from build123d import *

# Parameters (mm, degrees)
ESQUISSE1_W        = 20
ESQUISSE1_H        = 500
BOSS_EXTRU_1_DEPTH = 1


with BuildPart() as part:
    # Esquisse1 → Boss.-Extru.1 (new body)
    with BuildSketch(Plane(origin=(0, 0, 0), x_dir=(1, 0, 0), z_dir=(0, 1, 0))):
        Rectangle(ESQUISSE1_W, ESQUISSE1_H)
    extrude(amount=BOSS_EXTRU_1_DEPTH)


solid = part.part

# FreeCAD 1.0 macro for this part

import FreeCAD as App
import Part
import Sketcher

V = App.Vector
Q = App.Units.Quantity

doc = App.newDocument("Part")
body = doc.addObject("PartDesign::Body", "Body")

# Sketch on XZ plane
sketch1 = doc.addObject("Sketcher::SketchObject", "Sketch")
body.addObject(sketch1)
sketch1.AttachmentSupport = (doc.XZ_Plane, [""])
sketch1.MapMode = "FlatFace"
sketch1.addGeometry([
    Part.LineSegment(V(-10, -250, 0), V(-10, 250, 0)),
    Part.LineSegment(V(-10, 250, 0), V(10, 250, 0)),
    Part.LineSegment(V(10, 250, 0), V(10, -250, 0)),
    Part.LineSegment(V(10, -250, 0), V(-10, -250, 0)),
], False)
sketch1.addConstraint([
    Sketcher.Constraint("Coincident", 0, 2, 1, 1),
    Sketcher.Constraint("Coincident", 1, 2, 2, 1),
    Sketcher.Constraint("Coincident", 2, 2, 3, 1),
    Sketcher.Constraint("Coincident", 3, 2, 0, 1),
    Sketcher.Constraint("Vertical", 0),
    Sketcher.Constraint("Horizontal", 1),
    Sketcher.Constraint("Vertical", 2),
    Sketcher.Constraint("Horizontal", 3),
    Sketcher.Constraint("Symmetric", 0, 2, 2, 2, -1, 1),
    Sketcher.Constraint("DistanceX", 1, 1, 1, 2, Q("20 mm")),
    Sketcher.Constraint("DistanceY", 0, 1, 0, 2, Q("500 mm")),
])
pad1 = doc.addObject("PartDesign::Pad", "Pad")
body.addObject(pad1)
pad1.Profile = sketch1
pad1.Length = 1
pad1.Reversed = True

doc.recompute()
